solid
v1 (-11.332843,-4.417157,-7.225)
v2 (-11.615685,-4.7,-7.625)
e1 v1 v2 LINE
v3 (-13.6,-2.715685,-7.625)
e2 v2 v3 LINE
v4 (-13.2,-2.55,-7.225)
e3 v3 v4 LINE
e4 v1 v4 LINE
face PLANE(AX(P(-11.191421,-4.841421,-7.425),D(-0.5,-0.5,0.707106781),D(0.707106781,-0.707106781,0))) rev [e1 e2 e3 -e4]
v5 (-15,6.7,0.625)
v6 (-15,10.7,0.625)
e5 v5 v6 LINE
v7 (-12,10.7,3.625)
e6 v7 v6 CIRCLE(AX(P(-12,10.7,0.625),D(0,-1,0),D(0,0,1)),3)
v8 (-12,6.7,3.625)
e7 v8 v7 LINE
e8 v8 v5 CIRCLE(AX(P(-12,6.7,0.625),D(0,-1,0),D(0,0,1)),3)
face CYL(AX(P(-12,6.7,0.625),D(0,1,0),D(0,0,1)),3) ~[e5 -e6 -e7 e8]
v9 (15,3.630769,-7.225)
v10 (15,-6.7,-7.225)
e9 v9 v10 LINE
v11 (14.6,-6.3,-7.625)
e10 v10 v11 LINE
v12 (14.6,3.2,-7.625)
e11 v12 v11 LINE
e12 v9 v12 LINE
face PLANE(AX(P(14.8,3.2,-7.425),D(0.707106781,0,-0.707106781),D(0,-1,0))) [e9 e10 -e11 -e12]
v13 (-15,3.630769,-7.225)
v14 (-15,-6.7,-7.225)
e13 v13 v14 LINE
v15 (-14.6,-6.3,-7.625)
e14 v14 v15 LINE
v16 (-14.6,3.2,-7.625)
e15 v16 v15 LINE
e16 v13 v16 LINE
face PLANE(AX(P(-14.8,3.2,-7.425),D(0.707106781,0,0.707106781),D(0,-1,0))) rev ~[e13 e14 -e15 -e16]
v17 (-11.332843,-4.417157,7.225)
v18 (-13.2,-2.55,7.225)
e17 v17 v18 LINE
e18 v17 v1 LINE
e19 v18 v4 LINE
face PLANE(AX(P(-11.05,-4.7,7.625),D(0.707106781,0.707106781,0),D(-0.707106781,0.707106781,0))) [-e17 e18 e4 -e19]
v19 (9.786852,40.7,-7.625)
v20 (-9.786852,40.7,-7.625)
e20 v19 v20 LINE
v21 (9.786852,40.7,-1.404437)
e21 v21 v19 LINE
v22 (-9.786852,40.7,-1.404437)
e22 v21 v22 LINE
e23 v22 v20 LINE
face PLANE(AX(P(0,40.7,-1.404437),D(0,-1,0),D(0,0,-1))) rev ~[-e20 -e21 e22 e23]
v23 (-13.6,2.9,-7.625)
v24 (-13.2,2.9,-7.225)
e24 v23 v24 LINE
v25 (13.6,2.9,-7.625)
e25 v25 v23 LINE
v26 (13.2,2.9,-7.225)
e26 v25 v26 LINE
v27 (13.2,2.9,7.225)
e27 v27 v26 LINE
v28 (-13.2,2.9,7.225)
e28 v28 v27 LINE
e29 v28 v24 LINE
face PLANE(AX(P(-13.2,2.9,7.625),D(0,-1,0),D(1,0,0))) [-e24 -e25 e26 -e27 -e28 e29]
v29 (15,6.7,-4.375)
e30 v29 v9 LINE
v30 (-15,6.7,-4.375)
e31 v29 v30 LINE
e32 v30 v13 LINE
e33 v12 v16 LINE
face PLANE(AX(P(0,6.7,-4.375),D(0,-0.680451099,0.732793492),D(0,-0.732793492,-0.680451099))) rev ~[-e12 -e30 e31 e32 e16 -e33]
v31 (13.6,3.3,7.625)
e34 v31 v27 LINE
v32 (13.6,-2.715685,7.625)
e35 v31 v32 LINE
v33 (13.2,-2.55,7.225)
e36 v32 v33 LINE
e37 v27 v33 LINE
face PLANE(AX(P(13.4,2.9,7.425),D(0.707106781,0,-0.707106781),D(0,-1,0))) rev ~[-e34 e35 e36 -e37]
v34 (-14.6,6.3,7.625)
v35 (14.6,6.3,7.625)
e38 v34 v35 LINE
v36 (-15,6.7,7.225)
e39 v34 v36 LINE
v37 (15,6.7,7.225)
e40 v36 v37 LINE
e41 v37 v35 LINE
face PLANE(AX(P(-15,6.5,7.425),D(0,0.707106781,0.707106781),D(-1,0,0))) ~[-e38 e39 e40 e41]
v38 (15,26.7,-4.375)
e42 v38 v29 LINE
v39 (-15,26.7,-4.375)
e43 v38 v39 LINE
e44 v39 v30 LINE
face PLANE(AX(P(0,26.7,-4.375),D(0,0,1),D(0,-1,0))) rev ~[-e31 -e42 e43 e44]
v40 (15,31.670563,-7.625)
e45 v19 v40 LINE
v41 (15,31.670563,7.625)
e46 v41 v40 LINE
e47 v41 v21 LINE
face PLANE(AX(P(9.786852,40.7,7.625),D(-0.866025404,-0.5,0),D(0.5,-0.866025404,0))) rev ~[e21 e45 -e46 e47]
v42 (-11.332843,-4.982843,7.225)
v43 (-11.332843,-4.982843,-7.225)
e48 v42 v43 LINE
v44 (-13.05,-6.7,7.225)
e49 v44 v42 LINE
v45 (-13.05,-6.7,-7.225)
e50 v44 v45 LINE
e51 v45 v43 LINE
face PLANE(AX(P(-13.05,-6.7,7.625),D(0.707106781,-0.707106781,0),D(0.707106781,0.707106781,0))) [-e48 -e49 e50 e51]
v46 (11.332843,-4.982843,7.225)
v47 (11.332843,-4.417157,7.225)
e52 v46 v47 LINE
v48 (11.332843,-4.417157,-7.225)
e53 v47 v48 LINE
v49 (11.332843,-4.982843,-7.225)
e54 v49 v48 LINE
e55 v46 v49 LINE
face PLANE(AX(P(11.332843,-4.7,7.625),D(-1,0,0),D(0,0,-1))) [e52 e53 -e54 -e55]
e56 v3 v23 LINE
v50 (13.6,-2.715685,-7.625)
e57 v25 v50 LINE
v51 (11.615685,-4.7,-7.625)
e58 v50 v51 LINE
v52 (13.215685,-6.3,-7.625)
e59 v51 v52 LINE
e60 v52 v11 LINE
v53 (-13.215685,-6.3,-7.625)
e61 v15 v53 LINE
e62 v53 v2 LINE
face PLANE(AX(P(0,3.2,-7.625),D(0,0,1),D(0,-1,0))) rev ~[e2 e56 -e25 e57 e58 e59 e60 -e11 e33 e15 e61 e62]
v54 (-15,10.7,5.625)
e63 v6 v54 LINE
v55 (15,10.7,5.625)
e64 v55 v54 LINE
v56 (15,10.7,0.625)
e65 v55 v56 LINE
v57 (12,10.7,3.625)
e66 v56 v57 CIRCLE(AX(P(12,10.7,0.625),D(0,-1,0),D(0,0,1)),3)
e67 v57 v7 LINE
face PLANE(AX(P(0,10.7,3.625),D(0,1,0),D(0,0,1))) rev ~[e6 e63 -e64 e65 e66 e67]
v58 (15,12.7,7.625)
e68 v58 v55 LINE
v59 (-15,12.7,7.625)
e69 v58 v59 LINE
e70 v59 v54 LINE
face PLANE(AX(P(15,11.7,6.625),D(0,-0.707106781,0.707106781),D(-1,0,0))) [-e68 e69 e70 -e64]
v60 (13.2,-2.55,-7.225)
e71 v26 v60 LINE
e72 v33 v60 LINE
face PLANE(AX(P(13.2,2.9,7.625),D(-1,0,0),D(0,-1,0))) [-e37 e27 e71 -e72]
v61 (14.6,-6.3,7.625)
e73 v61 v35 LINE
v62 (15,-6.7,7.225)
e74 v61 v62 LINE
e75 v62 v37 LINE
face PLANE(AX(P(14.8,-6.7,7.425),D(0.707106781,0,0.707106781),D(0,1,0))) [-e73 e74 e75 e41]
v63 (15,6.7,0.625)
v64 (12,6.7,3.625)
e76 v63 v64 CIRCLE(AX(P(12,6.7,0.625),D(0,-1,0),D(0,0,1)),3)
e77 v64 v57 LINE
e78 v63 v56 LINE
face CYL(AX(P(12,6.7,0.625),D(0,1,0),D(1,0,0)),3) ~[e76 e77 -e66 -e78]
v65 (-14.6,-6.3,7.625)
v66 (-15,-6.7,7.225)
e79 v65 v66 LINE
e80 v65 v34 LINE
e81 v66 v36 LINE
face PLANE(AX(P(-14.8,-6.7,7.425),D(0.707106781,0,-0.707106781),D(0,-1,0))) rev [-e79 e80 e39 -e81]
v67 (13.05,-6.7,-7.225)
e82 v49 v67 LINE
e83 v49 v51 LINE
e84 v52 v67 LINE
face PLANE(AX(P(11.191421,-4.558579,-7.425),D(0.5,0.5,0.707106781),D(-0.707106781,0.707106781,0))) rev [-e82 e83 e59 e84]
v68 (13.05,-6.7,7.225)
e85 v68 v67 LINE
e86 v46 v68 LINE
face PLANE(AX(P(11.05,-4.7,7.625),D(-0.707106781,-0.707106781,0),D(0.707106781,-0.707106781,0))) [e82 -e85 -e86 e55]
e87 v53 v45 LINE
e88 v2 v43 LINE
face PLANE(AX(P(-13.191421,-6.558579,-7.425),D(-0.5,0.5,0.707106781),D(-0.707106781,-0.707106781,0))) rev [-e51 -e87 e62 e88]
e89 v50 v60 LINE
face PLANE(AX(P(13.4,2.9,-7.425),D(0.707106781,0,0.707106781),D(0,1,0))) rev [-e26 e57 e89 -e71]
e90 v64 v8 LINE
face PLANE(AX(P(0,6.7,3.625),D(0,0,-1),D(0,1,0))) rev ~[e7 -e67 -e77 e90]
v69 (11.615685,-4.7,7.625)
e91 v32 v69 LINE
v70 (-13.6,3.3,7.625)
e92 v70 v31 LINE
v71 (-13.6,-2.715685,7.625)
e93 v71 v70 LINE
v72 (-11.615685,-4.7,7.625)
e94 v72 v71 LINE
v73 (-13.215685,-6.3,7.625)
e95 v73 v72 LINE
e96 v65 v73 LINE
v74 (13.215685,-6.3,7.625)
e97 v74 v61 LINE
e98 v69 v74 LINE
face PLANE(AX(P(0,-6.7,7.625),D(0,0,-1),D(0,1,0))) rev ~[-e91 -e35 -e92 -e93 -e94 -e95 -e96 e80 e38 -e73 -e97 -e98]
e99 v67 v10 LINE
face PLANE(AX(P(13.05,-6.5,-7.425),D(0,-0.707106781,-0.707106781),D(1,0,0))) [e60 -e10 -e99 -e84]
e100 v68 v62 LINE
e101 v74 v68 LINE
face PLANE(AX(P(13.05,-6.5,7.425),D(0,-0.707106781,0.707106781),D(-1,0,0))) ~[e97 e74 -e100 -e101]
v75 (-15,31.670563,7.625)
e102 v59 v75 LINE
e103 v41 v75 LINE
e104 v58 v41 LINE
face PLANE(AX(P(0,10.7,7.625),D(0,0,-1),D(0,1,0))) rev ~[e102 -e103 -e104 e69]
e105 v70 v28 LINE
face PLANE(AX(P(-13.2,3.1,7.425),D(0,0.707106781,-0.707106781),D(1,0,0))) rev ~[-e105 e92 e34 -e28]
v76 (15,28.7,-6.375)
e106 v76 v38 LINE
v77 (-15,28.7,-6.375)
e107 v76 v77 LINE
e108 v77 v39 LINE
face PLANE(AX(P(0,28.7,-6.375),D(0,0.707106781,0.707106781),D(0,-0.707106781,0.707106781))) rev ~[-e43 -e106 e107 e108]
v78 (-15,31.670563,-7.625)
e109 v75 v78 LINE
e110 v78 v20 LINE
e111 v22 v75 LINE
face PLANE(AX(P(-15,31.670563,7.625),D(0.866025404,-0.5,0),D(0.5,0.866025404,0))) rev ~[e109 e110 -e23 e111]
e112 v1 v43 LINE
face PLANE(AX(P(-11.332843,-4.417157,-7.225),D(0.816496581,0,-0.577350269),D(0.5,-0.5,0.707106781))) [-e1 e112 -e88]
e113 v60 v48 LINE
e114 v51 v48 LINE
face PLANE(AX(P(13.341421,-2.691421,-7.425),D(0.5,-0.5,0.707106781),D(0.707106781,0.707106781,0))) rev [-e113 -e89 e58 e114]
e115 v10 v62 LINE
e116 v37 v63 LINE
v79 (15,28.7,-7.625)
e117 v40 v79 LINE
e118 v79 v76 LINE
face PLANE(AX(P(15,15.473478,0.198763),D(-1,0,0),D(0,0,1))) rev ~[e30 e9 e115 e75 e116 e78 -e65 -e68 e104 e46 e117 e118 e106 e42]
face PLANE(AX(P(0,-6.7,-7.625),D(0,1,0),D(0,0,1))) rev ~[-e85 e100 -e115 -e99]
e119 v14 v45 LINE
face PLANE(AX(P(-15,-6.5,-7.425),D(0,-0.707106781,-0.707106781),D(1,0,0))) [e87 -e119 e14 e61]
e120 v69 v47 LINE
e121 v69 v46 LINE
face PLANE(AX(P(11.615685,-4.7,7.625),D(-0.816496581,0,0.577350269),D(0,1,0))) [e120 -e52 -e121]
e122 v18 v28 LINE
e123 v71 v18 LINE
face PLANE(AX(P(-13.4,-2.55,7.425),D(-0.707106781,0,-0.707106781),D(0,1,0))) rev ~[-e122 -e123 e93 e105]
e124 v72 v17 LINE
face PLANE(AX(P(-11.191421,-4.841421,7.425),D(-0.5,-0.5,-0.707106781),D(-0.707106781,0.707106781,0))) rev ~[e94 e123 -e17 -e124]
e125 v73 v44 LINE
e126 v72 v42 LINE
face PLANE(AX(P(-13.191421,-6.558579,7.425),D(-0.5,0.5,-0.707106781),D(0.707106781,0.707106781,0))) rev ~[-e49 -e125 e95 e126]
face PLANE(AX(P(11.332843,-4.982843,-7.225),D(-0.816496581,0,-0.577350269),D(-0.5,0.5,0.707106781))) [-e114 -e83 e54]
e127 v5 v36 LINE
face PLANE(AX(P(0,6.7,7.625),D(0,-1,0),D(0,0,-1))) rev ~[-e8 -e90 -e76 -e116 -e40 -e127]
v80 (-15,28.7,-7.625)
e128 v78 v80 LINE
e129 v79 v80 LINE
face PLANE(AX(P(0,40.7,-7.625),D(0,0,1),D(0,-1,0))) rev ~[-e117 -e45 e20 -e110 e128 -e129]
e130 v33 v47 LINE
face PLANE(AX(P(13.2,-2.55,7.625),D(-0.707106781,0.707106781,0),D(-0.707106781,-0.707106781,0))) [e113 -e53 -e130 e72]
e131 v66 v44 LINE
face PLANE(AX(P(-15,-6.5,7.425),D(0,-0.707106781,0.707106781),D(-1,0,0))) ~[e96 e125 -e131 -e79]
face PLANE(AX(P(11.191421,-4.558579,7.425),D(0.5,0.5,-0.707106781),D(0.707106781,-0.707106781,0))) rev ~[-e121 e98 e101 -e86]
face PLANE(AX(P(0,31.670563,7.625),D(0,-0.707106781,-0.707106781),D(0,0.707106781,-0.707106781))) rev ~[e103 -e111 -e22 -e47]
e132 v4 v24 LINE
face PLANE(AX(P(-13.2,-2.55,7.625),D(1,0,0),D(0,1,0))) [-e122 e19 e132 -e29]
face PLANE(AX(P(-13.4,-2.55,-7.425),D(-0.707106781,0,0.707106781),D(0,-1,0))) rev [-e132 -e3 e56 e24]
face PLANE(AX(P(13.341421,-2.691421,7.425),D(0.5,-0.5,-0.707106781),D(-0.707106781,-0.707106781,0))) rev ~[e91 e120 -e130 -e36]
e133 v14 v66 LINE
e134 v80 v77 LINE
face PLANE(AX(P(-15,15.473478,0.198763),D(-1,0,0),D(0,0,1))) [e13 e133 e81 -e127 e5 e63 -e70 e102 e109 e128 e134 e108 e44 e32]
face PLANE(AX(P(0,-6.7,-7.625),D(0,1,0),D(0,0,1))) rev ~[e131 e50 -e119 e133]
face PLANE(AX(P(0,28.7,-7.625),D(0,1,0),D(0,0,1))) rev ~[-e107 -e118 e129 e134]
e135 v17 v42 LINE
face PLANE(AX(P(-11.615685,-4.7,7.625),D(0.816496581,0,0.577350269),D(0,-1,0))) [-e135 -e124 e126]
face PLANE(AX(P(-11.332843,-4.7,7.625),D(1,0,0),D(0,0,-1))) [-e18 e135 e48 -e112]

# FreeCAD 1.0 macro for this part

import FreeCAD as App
import Part
import Sketcher
from FreeCAD import Vector
Q = App.Units.Quantity


def edges_at(feature, points):
    """Names of the edges that pass closest to the given points."""
    edges = feature.Shape.Edges
    near = lambda p: min(range(len(edges)), key=lambda i: edges[i].distToShape(Part.Vertex(*p))[0])
    return sorted({f"Edge{near(p) + 1}" for p in points})


def add_polygon(sketch, points):
    """Adds a closed chain of lines whose ends are joined by coincident constraints."""
    first, n = sketch.GeometryCount, len(points)
    for a, b in zip(points, points[1:] + points[:1]):
        sketch.addGeometry(Part.LineSegment(App.Vector(*a, 0), App.Vector(*b, 0)), False)
    for i in range(n):
        sketch.addConstraint(Sketcher.Constraint("Coincident", first + i, 2, first + (i + 1) % n, 1))

doc = App.newDocument("Part")
params = doc.addObject("Spreadsheet::Sheet", "Params")
for row, (alias, value) in enumerate([
    ("sketch1_width", "20 mm"),
    ("sketch1_width2", "12 mm"),
    ("sketch1_width3", "4 mm"),
    ("sketch1_width4", "13.4 mm"),
    ("sketch1_width5", "9.9 mm"),
    ("pad1_length", "30 mm"),
    ("fillet_radius", "3 mm"),
    ("sketch2_width", "26.4 mm"),
    ("sketch2_width2", "26.1 mm"),
    ("sketch2_height", "5.45 mm"),
    ("chamfer_size", "0.4 mm"),
    ("chamfer2_size", "2 mm"),
], start=1):
    params.set(f"A{row}", alias)
    params.set(f"B{row}", "=" + value)
    params.setAlias(f"B{row}", alias)

body = doc.addObject("PartDesign::Body", "Body")

sketch1 = body.newObject("Sketcher::SketchObject", "Sketch")
sketch1.AttachmentSupport = (doc.getObject("YZ_Plane"), [""])
sketch1.MapMode = "FlatFace"
add_polygon(sketch1, [(6.7, 3.6), (6.7, 7.6), (-6.7, 7.6), (-6.7, -7.6), (3.2, -7.6), (6.7, -4.4), (26.7, -4.4), (28.7, -6.4), (28.7, -7.6), (40.7, -7.6), (40.7, -1.4), (31.7, 7.6), (10.7, 7.6), (10.7, 3.6)])
sketch1.addConstraint([
    Sketcher.Constraint("Vertical", 0),
    Sketcher.Constraint("Horizontal", 1),
    Sketcher.Constraint("Vertical", 2),
    Sketcher.Constraint("Horizontal", 3),
    Sketcher.Constraint("Horizontal", 5),
    Sketcher.Constraint("Vertical", 7),
    Sketcher.Constraint("Horizontal", 8),
    Sketcher.Constraint("Vertical", 9),
    Sketcher.Constraint("Horizontal", 11),
    Sketcher.Constraint("Vertical", 12),
    Sketcher.Constraint("Horizontal", 13),
    Sketcher.Constraint("Symmetric", 0, 2, 2, 2, -1, 1),
    Sketcher.Constraint("Parallel", 6, 10),
    Sketcher.Constraint("Horizontal", 3, 2, 7, 2),
    Sketcher.Constraint("Horizontal", 1, 2, 10, 2),
    Sketcher.Constraint("Vertical", 0, 2, 4, 2),
    Sketcher.Constraint("Equal", 13, 0),
    Sketcher.Constraint("DistanceX", 5, 1, 5, 2, 20.0),
    Sketcher.Constraint("DistanceX", 8, 1, 8, 2, 12.0),
    Sketcher.Constraint("DistanceX", 13, 2, 13, 1, 4.0),
    Sketcher.Constraint("Angle", 6, Q("-45 deg")),
    Sketcher.Constraint("DistanceX", 1, 2, 1, 1, 13.4),
    Sketcher.Constraint("DistanceX", 3, 1, 3, 2, 9.9),
    Sketcher.Constraint("DistanceY", 4, 2, 0, 2, 12.0),
    Sketcher.Constraint("DistanceX", 5, 2, 6, 2, 2.0),
    Sketcher.Constraint("DistanceY", 2, 2, 2, 1, 15.25),
    Sketcher.Constraint("DistanceX", 11, 2, 11, 1, 20.970563),
])
sketch1.setExpression("Constraints[31]", "Params.sketch1_width")
sketch1.setExpression("Constraints[32]", "Params.sketch1_width2")
sketch1.setExpression("Constraints[33]", "Params.sketch1_width3")
sketch1.setExpression("Constraints[35]", "Params.sketch1_width4")
sketch1.setExpression("Constraints[36]", "Params.sketch1_width5")
pad1 = body.newObject("PartDesign::Pad", "Pad")
pad1.Profile = sketch1
pad1.setExpression("Length", "Params.pad1_length")
pad1.Midplane = True
doc.recompute()

fillet = body.newObject("PartDesign::Fillet", "Fillet")
fillet.Base = (pad1, edges_at(pad1, [(-15, 8.7, 3.625), (15, 8.7, 3.625)]))
fillet.setExpression("Radius", "Params.fillet_radius")

sketch2 = body.newObject("Sketcher::SketchObject", "Sketch001")
sketch2.AttachmentSupport = (doc.getObject("XY_Plane"), [""])
sketch2.MapMode = "FlatFace"
sketch2.AttachmentOffset = App.Placement(Vector(0, 0, 7.625), App.Rotation())
add_polygon(sketch2, [(13.2, 2.9), (-13.2, 2.9), (-13.2, -2.5), (-11.1, -4.7), (-13.1, -6.7), (13.1, -6.7), (11.1, -4.7), (13.2, -2.5)])
sketch2.addConstraint([
    Sketcher.Constraint("Horizontal", 0),
    Sketcher.Constraint("Vertical", 1),
    Sketcher.Constraint("Horizontal", 4),
    Sketcher.Constraint("Vertical", 7),
    Sketcher.Constraint("Symmetric", 2, 2, 5, 2, -2),
    Sketcher.Constraint("Symmetric", 1, 2, 6, 2, -2),
    Sketcher.Constraint("Perpendicular", 2, 3),
    Sketcher.Constraint("Perpendicular", 3, 5),
    Sketcher.Constraint("Perpendicular", 5, 6),
    Sketcher.Constraint("DistanceX", 0, 2, 0, 1, 26.4),
    Sketcher.Constraint("DistanceX", 4, 1, 4, 2, 26.1),
    Sketcher.Constraint("DistanceX", 3, 2, 2, 2, 2.0),
    Sketcher.Constraint("DistanceY", 1, 2, 1, 1, 5.45),
    Sketcher.Constraint("DistanceY", -1, 1, 0, 2, 2.9),
])
sketch2.setExpression("Constraints[17]", "Params.sketch2_width")
sketch2.setExpression("Constraints[18]", "Params.sketch2_width2")
sketch2.setExpression("Constraints[20]", "Params.sketch2_height")
pocket1 = body.newObject("PartDesign::Pocket", "Pocket")
pocket1.Profile = sketch2
pocket1.Type = "ThroughAll"
doc.recompute()

chamfer = body.newObject("PartDesign::Chamfer", "Chamfer")
chamfer.Base = (pocket1, edges_at(pocket1, [
    (15, -1.75, -7.625),
    (-15, -1.75, -7.625),
    (-15, 0, 7.625),
    (0, 6.7, 7.625),
    (14.025, -6.7, -7.625),
    (14.025, -6.7, 7.625),
    (15, 0, 7.625),
    (-14.025, -6.7, -7.625),
    (-14.025, -6.7, 7.625),
    (-13.2, 0.175, -7.625),
    (13.2, 0.175, -7.625),
    (12.125, -3.625, -7.625),
    (12.05, -5.7, -7.625),
    (11.05, -4.7, 0),
    (-12.05, -5.7, -7.625),
    (-12.125, -3.625, -7.625),
    (-11.05, -4.7, 0),
    (-13.2, 0.175, 7.625),
    (-12.125, -3.625, 7.625),
    (-12.05, -5.7, 7.625),
    (12.05, -5.7, 7.625),
    (12.125, -3.625, 7.625),
    (13.2, 0.175, 7.625),
    (0, 2.9, 7.625),
]))
chamfer.setExpression("Size", "Params.chamfer_size")

sketch3 = body.newObject("Sketcher::SketchObject", "Sketch002")
sketch3.AttachmentSupport = (doc.getObject("XY_Plane"), [""])
sketch3.MapMode = "FlatFace"
sketch3.AttachmentOffset = App.Placement(Vector(0, 0, 7.625), App.Rotation())
add_polygon(sketch3, [(-15, 32), (-10, 41), (-15, 41)])
add_polygon(sketch3, [(15, 32), (15, 41), (10, 41)])
sketch3.addConstraint([
    Sketcher.Constraint("Horizontal", 1),
    Sketcher.Constraint("Vertical", 2),
    Sketcher.Constraint("Vertical", 3),
    Sketcher.Constraint("Horizontal", 4),
    Sketcher.Constraint("Symmetric", 1, 2, 3, 2, -2),
    Sketcher.Constraint("Horizontal", 2, 2, 5, 2),
    Sketcher.Constraint("Equal", 1, 4),
    Sketcher.Constraint("Angle", 0, Q("60 deg")),
    Sketcher.Constraint("DistanceX", 1, 2, -1, 1, 15.0),
    Sketcher.Constraint("DistanceY", -1, 1, 0, 2, 40.7),
    Sketcher.Constraint("DistanceX", 1, 2, 1, 1, 5.213148),
])
pocket2 = body.newObject("PartDesign::Pocket", "Pocket001")
pocket2.Profile = sketch3
pocket2.Type = "ThroughAll"
doc.recompute()

chamfer2 = body.newObject("PartDesign::Chamfer", "Chamfer001")
chamfer2.Base = (pocket2, edges_at(pocket2, [(0, 10.7, 7.625)]))
chamfer2.setExpression("Size", "Params.chamfer2_size")

doc.recompute()
